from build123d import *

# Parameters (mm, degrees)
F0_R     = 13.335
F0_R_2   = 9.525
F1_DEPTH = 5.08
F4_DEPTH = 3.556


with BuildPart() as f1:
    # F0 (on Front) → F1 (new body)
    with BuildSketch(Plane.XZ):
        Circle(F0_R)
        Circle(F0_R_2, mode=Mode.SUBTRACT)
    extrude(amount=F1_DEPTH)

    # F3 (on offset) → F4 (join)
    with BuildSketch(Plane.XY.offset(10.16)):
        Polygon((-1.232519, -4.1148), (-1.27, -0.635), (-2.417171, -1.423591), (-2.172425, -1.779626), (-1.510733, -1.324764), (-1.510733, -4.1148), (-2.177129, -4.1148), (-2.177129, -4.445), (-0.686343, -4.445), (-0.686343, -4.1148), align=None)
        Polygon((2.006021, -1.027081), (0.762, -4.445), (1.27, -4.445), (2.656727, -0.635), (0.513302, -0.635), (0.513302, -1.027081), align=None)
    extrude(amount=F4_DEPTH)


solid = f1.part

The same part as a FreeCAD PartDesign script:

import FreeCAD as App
import Part
import Sketcher

V = App.Vector
Q = App.Units.Quantity

doc = App.newDocument("Part")
body = doc.addObject("PartDesign::Body", "Body")

# Sketch on XZ plane
sketch1 = body.newObject("Sketcher::SketchObject", "Sketch")
sketch1.AttachmentSupport = (doc.getObject("XZ_Plane"), [""])
sketch1.MapMode = "FlatFace"
sketch1.addGeometry(Part.Circle(V(0, 0, 0), V(0, 0, 1), 13), False)
sketch1.addGeometry(Part.Circle(V(0, 0, 0), V(0, 0, 1), 10), False)
sketch1.addConstraint(Sketcher.Constraint("Coincident", 0, 3, -1, 1))
sketch1.addConstraint(Sketcher.Constraint("Coincident", 1, 3, -1, 1))
sketch1.addConstraint(Sketcher.Constraint("Diameter", 0, Q("1.05 in")))
sketch1.addConstraint(Sketcher.Constraint("Diameter", 1, Q("0.75 in")))
pad1 = body.newObject("PartDesign::Pad", "Pad")
pad1.Profile = sketch1
pad1.Length = Q("0.2 in")

# Sketch on XY plane
sketch2 = body.newObject("Sketcher::SketchObject", "Sketch001")
sketch2.AttachmentSupport = (doc.getObject("XY_Plane"), [""])
sketch2.MapMode = "FlatFace"
sketch2.AttachmentOffset = App.Placement(V(0, 0, 0.4 * 25.4), App.Rotation())
sketch2.addGeometry(Part.LineSegment(V(-1.23, -4.11, 0), V(-1.27, -0.64, 0)), False)
sketch2.addGeometry(Part.LineSegment(V(-1.27, -0.64, 0), V(-2.42, -1.42, 0)), False)
sketch2.addGeometry(Part.LineSegment(V(-2.42, -1.42, 0), V(-2.17, -1.78, 0)), False)
sketch2.addGeometry(Part.LineSegment(V(-2.17, -1.78, 0), V(-1.51, -1.32, 0)), False)
sketch2.addGeometry(Part.LineSegment(V(-1.51, -1.32, 0), V(-1.51, -4.11, 0)), False)
sketch2.addGeometry(Part.LineSegment(V(-1.51, -4.11, 0), V(-2.18, -4.11, 0)), False)
sketch2.addGeometry(Part.LineSegment(V(-2.18, -4.11, 0), V(-2.18, -4.45, 0)), False)
sketch2.addGeometry(Part.LineSegment(V(-2.18, -4.45, 0), V(-0.69, -4.45, 0)), False)
sketch2.addGeometry(Part.LineSegment(V(-0.69, -4.45, 0), V(-0.69, -4.11, 0)), False)
sketch2.addGeometry(Part.LineSegment(V(-0.69, -4.11, 0), V(-1.23, -4.11, 0)), False)
sketch2.addGeometry(Part.LineSegment(V(2.01, -1.03, 0), V(0.76, -4.45, 0)), False)
sketch2.addGeometry(Part.LineSegment(V(0.76, -4.45, 0), V(1.27, -4.45, 0)), False)
sketch2.addGeometry(Part.LineSegment(V(1.27, -4.45, 0), V(2.66, -0.64, 0)), False)
sketch2.addGeometry(Part.LineSegment(V(2.66, -0.64, 0), V(0.51, -0.64, 0)), False)
sketch2.addGeometry(Part.LineSegment(V(0.51, -0.64, 0), V(0.51, -1.03, 0)), False)
sketch2.addGeometry(Part.LineSegment(V(0.51, -1.03, 0), V(2.01, -1.03, 0)), False)
sketch2.addConstraint(Sketcher.Constraint("Coincident", 0, 2, 1, 1))
sketch2.addConstraint(Sketcher.Constraint("Coincident", 1, 2, 2, 1))
sketch2.addConstraint(Sketcher.Constraint("Coincident", 2, 2, 3, 1))
sketch2.addConstraint(Sketcher.Constraint("Coincident", 3, 2, 4, 1))
sketch2.addConstraint(Sketcher.Constraint("Coincident", 4, 2, 5, 1))
sketch2.addConstraint(Sketcher.Constraint("Coincident", 5, 2, 6, 1))
sketch2.addConstraint(Sketcher.Constraint("Coincident", 6, 2, 7, 1))
sketch2.addConstraint(Sketcher.Constraint("Coincident", 7, 2, 8, 1))
sketch2.addConstraint(Sketcher.Constraint("Coincident", 8, 2, 9, 1))
sketch2.addConstraint(Sketcher.Constraint("Coincident", 9, 2, 0, 1))
sketch2.addConstraint(Sketcher.Constraint("Coincident", 10, 2, 11, 1))
sketch2.addConstraint(Sketcher.Constraint("Coincident", 11, 2, 12, 1))
sketch2.addConstraint(Sketcher.Constraint("Coincident", 12, 2, 13, 1))
sketch2.addConstraint(Sketcher.Constraint("Coincident", 13, 2, 14, 1))
sketch2.addConstraint(Sketcher.Constraint("Coincident", 14, 2, 15, 1))
sketch2.addConstraint(Sketcher.Constraint("Coincident", 15, 2, 10, 1))
sketch2.addConstraint(Sketcher.Constraint("Vertical", 4))
sketch2.addConstraint(Sketcher.Constraint("Horizontal", 5))
sketch2.addConstraint(Sketcher.Constraint("Vertical", 6))
sketch2.addConstraint(Sketcher.Constraint("Horizontal", 7))
sketch2.addConstraint(Sketcher.Constraint("Vertical", 8))
sketch2.addConstraint(Sketcher.Constraint("Horizontal", 9))
sketch2.addConstraint(Sketcher.Constraint("Horizontal", 11))
sketch2.addConstraint(Sketcher.Constraint("Horizontal", 13))
sketch2.addConstraint(Sketcher.Constraint("Vertical", 14))
sketch2.addConstraint(Sketcher.Constraint("Horizontal", 15))
sketch2.addConstraint(Sketcher.Constraint("Perpendicular", 1, 2))
sketch2.addConstraint(Sketcher.Constraint("Perpendicular", 2, 3))
sketch2.addConstraint(Sketcher.Constraint("Parallel", 10, 12))
sketch2.addConstraint(Sketcher.Constraint("Horizontal", 5, 2, 8, 2))
sketch2.addConstraint(Sketcher.Constraint("Horizontal", 7, 2, 10, 2))
sketch2.addConstraint(Sketcher.Constraint("Horizontal", 0, 2, 12, 2))
sketch2.addConstraint(Sketcher.Constraint("Angle", 10, Q("-110.000003 deg")))
sketch2.addConstraint(Sketcher.Constraint("DistanceX", 11, 1, 11, 2, Q("0.02 in")))
sketch2.addConstraint(Sketcher.Constraint("DistanceY", 6, 2, 6, 1, Q("0.013 in")))
sketch2.addConstraint(Sketcher.Constraint("DistanceX", 0, 2, -1, 1, Q("0.05 in")))
sketch2.addConstraint(Sketcher.Constraint("DistanceX", -1, 1, 10, 2, Q("0.03 in")))
sketch2.addConstraint(Sketcher.Constraint("DistanceY", 11, 2, 12, 2, Q("0.15 in")))
sketch2.addConstraint(Sketcher.Constraint("DistanceY", 0, 2, -1, 1, Q("0.025 in")))
sketch2.addConstraint(Sketcher.Constraint("Distance", 0, 3.480002))
sketch2.addConstraint(Sketcher.Constraint("DistanceX", 15, 1, 15, 2, 1.492719))
sketch2.addConstraint(Sketcher.Constraint("DistanceY", 14, 2, 14, 1, 0.392081))
sketch2.addConstraint(Sketcher.Constraint("DistanceX", 5, 2, 5, 1, 0.666396))
sketch2.addConstraint(Sketcher.Constraint("DistanceX", 7, 1, 7, 2, 1.490786))
sketch2.addConstraint(Sketcher.Constraint("DistanceX", 9, 2, 9, 1, 0.546176))
sketch2.addConstraint(Sketcher.Constraint("DistanceY", 4, 2, 4, 1, 2.790036))
sketch2.addConstraint(Sketcher.Constraint("DistanceX", 1, 2, -1, 1, 2.417171))
sketch2.addConstraint(Sketcher.Constraint("DistanceY", 1, 2, -1, 1, 1.423591))
pad2 = body.newObject("PartDesign::Pad", "Pad001")
pad2.Profile = sketch2
pad2.Length = Q("0.14 in")

doc.recompute()
